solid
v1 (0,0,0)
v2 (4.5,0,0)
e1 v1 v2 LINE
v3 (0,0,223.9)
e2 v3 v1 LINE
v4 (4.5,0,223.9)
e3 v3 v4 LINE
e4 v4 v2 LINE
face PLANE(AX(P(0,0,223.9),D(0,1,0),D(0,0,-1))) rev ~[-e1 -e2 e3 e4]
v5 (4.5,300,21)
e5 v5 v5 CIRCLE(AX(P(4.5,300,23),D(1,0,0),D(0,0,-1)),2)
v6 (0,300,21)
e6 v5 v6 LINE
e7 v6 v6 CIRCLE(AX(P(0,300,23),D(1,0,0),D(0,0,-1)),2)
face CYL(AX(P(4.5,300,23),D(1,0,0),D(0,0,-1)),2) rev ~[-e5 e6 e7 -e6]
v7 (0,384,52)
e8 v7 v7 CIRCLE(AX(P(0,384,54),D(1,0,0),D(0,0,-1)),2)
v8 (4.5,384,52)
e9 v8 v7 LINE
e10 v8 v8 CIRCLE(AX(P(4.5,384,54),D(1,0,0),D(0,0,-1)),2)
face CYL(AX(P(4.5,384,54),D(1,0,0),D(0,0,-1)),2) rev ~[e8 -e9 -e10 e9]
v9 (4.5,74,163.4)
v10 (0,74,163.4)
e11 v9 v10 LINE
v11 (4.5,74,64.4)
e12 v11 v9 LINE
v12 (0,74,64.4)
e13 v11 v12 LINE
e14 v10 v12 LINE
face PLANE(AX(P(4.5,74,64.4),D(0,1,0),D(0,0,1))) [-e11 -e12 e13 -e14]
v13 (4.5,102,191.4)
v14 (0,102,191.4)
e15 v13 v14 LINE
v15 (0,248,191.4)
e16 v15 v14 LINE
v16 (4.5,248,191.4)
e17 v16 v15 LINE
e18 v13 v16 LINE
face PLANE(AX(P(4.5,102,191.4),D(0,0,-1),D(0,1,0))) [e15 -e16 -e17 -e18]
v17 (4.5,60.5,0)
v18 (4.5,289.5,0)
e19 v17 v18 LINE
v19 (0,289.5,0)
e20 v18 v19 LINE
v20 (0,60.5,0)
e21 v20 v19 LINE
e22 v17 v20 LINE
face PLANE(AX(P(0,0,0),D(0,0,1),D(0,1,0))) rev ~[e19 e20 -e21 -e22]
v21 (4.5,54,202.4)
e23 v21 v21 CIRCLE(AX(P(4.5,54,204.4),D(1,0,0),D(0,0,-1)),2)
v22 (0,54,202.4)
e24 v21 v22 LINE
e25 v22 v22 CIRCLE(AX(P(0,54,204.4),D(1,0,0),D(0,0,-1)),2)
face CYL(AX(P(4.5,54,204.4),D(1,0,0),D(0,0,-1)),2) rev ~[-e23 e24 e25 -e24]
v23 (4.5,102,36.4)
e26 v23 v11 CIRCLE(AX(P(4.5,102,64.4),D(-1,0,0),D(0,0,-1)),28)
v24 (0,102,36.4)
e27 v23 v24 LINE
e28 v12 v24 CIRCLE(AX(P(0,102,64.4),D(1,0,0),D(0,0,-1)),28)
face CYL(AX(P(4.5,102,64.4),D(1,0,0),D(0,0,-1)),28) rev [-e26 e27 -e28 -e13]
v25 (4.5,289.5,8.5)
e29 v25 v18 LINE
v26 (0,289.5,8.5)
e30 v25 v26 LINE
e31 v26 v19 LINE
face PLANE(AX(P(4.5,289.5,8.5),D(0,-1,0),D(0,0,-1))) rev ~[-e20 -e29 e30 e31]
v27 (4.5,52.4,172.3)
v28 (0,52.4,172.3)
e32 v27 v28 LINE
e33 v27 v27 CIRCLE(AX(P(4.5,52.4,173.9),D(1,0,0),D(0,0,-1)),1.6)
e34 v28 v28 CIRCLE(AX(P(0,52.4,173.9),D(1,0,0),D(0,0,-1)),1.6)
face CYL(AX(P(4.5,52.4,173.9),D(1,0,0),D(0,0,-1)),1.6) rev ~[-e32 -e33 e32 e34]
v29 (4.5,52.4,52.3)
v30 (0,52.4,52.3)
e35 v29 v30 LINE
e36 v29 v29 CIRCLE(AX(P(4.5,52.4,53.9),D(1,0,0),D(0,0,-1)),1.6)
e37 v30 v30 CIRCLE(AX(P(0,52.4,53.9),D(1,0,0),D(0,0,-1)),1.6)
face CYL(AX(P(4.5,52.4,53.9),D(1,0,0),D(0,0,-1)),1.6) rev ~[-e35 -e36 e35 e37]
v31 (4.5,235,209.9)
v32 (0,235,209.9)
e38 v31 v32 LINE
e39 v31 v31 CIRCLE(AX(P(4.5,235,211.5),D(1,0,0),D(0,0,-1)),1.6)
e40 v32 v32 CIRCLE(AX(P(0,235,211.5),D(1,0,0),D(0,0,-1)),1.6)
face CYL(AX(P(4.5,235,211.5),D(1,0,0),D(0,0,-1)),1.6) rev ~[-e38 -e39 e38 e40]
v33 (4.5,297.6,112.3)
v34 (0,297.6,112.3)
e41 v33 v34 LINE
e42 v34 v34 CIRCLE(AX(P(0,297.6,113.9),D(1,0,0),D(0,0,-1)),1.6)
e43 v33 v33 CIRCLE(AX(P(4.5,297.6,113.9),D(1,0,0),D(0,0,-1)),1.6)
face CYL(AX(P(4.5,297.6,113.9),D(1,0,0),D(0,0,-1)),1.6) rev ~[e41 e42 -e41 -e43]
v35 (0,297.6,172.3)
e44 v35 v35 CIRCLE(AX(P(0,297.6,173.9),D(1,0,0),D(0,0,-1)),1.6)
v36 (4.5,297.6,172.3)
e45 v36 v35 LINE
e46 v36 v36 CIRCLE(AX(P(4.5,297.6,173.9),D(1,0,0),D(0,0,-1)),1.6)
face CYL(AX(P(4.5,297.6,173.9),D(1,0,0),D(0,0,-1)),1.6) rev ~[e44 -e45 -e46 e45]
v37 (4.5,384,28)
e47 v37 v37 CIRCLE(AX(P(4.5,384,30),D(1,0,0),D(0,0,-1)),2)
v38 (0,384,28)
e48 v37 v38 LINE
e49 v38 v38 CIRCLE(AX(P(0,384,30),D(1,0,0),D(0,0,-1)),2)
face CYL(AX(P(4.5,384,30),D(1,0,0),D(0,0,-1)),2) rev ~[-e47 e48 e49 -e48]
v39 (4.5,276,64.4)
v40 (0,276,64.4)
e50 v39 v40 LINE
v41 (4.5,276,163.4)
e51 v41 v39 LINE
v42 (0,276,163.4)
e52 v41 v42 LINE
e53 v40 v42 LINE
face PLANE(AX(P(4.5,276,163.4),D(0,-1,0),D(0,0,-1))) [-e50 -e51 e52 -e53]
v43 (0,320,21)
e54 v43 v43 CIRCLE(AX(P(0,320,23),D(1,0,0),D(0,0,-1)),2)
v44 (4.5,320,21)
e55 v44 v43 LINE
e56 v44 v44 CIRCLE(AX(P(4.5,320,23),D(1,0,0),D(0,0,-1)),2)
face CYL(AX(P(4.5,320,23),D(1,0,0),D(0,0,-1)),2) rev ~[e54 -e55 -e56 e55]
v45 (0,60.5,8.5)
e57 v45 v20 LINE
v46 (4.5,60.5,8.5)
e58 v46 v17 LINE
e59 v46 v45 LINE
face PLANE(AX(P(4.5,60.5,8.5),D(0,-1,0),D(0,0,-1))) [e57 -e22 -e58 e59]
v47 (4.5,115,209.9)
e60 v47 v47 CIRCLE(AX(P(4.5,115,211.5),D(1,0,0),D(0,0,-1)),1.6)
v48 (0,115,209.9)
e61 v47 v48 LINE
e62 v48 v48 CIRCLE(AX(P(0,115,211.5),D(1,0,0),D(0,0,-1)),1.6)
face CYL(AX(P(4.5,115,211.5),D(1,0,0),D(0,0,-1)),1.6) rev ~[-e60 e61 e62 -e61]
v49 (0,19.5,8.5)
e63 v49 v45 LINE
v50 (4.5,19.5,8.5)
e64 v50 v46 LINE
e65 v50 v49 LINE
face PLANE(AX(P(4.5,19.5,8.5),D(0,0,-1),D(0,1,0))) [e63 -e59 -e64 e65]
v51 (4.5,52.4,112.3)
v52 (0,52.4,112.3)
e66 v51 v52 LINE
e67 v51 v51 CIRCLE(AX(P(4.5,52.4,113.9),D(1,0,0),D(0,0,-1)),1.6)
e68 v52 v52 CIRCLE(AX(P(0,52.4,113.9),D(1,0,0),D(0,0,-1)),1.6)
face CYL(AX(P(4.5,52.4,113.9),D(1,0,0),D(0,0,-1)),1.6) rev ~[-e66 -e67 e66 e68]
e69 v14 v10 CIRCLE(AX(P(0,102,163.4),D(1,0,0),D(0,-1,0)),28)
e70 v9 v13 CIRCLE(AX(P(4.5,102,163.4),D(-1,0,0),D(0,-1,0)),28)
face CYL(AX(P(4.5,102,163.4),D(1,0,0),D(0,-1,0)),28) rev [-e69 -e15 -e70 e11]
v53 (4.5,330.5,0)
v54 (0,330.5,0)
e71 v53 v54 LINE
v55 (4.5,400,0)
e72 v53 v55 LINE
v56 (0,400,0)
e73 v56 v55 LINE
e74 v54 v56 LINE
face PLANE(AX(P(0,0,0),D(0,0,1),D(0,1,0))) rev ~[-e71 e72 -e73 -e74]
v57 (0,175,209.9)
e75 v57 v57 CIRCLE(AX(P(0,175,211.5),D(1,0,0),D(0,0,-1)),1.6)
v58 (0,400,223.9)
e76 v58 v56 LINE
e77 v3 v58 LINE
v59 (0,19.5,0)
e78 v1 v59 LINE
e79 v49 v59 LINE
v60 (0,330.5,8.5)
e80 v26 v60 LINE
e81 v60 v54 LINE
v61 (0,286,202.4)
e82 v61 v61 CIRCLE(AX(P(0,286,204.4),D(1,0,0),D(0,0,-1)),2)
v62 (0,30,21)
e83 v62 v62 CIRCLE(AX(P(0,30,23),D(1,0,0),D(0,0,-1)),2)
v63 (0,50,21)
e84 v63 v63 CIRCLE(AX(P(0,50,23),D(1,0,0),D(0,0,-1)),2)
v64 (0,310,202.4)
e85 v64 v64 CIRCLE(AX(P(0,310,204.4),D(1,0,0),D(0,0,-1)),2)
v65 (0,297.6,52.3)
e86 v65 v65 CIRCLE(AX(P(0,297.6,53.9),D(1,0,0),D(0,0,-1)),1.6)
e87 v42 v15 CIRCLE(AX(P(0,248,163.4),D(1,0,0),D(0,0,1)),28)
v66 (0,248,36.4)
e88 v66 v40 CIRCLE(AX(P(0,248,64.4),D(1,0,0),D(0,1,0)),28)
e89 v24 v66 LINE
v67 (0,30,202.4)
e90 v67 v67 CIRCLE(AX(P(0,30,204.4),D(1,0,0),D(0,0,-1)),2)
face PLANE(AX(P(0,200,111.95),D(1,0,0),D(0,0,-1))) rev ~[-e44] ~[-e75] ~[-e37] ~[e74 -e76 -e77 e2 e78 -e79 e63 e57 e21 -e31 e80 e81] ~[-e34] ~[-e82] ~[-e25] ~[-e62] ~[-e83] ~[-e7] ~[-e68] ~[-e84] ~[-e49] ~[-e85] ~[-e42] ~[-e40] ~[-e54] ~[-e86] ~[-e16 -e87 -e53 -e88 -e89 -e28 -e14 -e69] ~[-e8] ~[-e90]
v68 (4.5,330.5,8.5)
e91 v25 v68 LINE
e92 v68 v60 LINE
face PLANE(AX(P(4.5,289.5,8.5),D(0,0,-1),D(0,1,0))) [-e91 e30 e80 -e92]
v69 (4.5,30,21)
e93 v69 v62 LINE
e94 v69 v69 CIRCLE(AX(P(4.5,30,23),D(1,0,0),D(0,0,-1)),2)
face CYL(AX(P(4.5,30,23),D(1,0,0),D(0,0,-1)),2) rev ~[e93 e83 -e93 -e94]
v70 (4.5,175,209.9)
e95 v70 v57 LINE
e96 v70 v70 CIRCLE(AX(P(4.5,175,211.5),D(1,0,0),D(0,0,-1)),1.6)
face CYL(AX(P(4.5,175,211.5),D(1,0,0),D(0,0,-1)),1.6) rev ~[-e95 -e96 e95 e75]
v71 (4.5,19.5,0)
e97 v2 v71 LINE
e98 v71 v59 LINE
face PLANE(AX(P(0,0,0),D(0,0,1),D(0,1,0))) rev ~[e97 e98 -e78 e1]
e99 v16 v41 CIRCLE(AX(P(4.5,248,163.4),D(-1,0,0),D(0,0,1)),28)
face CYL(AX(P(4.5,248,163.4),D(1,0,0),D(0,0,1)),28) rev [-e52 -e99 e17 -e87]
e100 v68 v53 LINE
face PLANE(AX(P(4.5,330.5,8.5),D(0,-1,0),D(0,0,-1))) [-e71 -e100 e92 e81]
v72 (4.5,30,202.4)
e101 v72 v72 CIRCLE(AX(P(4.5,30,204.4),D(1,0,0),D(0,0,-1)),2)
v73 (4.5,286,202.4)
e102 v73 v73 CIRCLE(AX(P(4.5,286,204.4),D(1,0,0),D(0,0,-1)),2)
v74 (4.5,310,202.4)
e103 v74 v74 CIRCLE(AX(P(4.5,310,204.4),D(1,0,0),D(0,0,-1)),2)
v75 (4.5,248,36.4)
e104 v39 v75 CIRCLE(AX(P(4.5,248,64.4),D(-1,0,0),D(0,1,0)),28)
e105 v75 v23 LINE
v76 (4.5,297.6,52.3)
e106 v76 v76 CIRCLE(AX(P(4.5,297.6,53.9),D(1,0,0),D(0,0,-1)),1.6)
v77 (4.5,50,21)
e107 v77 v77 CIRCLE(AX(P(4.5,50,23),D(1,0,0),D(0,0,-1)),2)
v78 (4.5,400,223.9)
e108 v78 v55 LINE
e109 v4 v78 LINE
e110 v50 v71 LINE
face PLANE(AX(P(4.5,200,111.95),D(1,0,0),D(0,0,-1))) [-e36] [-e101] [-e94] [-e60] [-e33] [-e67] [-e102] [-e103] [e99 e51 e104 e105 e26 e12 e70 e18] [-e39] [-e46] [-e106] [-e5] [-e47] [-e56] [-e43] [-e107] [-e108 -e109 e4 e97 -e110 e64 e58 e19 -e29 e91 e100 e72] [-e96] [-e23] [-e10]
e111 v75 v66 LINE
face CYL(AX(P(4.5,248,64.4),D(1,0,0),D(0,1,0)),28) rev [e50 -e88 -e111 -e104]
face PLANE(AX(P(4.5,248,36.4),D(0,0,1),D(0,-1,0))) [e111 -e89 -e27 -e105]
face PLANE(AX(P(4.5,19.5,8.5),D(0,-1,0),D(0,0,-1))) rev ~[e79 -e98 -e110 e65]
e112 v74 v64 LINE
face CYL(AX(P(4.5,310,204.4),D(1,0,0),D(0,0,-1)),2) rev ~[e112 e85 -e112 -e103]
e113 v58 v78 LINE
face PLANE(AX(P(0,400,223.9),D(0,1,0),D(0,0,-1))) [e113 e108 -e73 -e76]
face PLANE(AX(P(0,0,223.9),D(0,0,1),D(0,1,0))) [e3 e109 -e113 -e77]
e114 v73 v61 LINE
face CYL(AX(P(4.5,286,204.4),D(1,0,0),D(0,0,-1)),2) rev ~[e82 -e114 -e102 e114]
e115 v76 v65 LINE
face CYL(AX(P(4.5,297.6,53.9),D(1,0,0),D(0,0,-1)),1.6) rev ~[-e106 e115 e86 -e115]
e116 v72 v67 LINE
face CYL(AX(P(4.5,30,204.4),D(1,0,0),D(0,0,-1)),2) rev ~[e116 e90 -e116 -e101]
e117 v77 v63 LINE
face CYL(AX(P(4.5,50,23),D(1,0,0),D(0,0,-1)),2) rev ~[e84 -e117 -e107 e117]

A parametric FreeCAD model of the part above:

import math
import FreeCAD as App
import Part
import Sketcher
from FreeCAD import Vector
Q = App.Units.Quantity


def add_polygon(sketch, points):
    """Adds a closed chain of lines whose ends are joined by coincident constraints."""
    first, n = sketch.GeometryCount, len(points)
    for a, b in zip(points, points[1:] + points[:1]):
        sketch.addGeometry(Part.LineSegment(App.Vector(*a, 0), App.Vector(*b, 0)), False)
    for i in range(n):
        sketch.addConstraint(Sketcher.Constraint("Coincident", first + i, 2, first + (i + 1) % n, 1))

doc = App.newDocument("Part")
body = doc.addObject("PartDesign::Body", "Body")

# Sketch on YZ plane
sketch1 = doc.addObject("Sketcher::SketchObject", "Sketch")
body.addObject(sketch1)
sketch1.AttachmentSupport = (doc.YZ_Plane, [""])
sketch1.MapMode = "FlatFace"
add_polygon(sketch1, [(400, 223.9), (0, 223.9), (0, 0), (400, 0)])  # lines 0-3
sketch1.addConstraint([
    Sketcher.Constraint("Horizontal", 0),
    Sketcher.Constraint("Vertical", 1),
    Sketcher.Constraint("Horizontal", 2),
    Sketcher.Constraint("Vertical", 3),
    Sketcher.Constraint("Coincident", 1, 2, -1, 1),
    Sketcher.Constraint("DistanceX", 0, 2, 0, 1, Q("400 mm")),
    Sketcher.Constraint("DistanceY", 1, 2, 1, 1, Q("223.9 mm")),
])
pad1 = doc.addObject("PartDesign::Pad", "Pad")
body.addObject(pad1)
pad1.Profile = sketch1
pad1.Length = 4.5

# Sketch on YZ plane
sketch2 = doc.addObject("Sketcher::SketchObject", "Sketch001")
body.addObject(sketch2)
sketch2.AttachmentSupport = (doc.YZ_Plane, [""])
sketch2.MapMode = "FlatFace"
sketch2.AttachmentOffset = App.Placement(Vector(0, 0, 4.5), App.Rotation())
sketch2.addGeometry(Part.Circle(Vector(310, 204.4, 0), Vector(0, 0, 1), 2), False)  # 0
sketch2.addGeometry(Part.Circle(Vector(286, 204.4, 0), Vector(0, 0, 1), 2), False)  # 1
sketch2.addGeometry(Part.Circle(Vector(54, 204.4, 0), Vector(0, 0, 1), 2), False)  # 2
sketch2.addGeometry(Part.Circle(Vector(30, 204.4, 0), Vector(0, 0, 1), 2), False)  # 3
sketch2.addGeometry(Part.Circle(Vector(384, 54, 0), Vector(0, 0, 1), 2), False)  # 4
sketch2.addGeometry(Part.Circle(Vector(384, 30, 0), Vector(0, 0, 1), 2), False)  # 5
sketch2.addGeometry(Part.Circle(Vector(320, 23, 0), Vector(0, 0, 1), 2), False)  # 6
sketch2.addGeometry(Part.Circle(Vector(300, 23, 0), Vector(0, 0, 1), 2), False)  # 7
sketch2.addGeometry(Part.Circle(Vector(50, 23, 0), Vector(0, 0, 1), 2), False)  # 8
sketch2.addGeometry(Part.Circle(Vector(30, 23, 0), Vector(0, 0, 1), 2), False)  # 9
add_polygon(sketch2, [(330.5, 8.5), (289.5, 8.5), (289.5, 0), (330.5, 0)])  # lines 10-13
add_polygon(sketch2, [(60.5, 8.5), (19.5, 8.5), (19.5, 0), (60.5, 0)])  # lines 14-17
sketch2.addConstraint([
    Sketcher.Constraint("Horizontal", 10),
    Sketcher.Constraint("Vertical", 11),
    Sketcher.Constraint("Horizontal", 12),
    Sketcher.Constraint("Vertical", 13),
    Sketcher.Constraint("Horizontal", 14),
    Sketcher.Constraint("Vertical", 15),
    Sketcher.Constraint("Horizontal", 16),
    Sketcher.Constraint("Vertical", 17),
    Sketcher.Constraint("Equal", 0, 1),
    Sketcher.Constraint("Equal", 1, 2),
    Sketcher.Constraint("Equal", 2, 3),
    Sketcher.Constraint("Equal", 3, 4),
    Sketcher.Constraint("Equal", 4, 5),
    Sketcher.Constraint("Equal", 5, 6),
    Sketcher.Constraint("Equal", 6, 7),
    Sketcher.Constraint("Equal", 7, 8),
    Sketcher.Constraint("Equal", 8, 9),
    Sketcher.Constraint("PointOnObject", 11, 2, -1),
    Sketcher.Constraint("PointOnObject", 15, 2, -1),
    Sketcher.Constraint("Horizontal", 0, 3, 1, 3),
    Sketcher.Constraint("Horizontal", 1, 3, 2, 3),
    Sketcher.Constraint("Horizontal", 2, 3, 3, 3),
    Sketcher.Constraint("Horizontal", 6, 3, 7, 3),
    Sketcher.Constraint("Horizontal", 7, 3, 8, 3),
    Sketcher.Constraint("Horizontal", 8, 3, 9, 3),
    Sketcher.Constraint("Horizontal", 13, 2, 14, 2),
    Sketcher.Constraint("Vertical", 4, 3, 5, 3),
    Sketcher.Constraint("Vertical", 3, 3, 9, 3),
    Sketcher.Constraint("Equal", 12, 14),
    Sketcher.Constraint("Diameter", 0, Q("4 mm")),
    Sketcher.Constraint("DistanceX", 10, 2, 10, 1, Q("41 mm")),
    Sketcher.Constraint("DistanceY", 11, 2, 11, 1, Q("8.5 mm")),
    Sketcher.Constraint("DistanceX", -1, 1, 0, 3, Q("310 mm")),
    Sketcher.Constraint("DistanceX", -1, 1, 1, 3, Q("286 mm")),
    Sketcher.Constraint("DistanceX", -1, 1, 2, 3, Q("54 mm")),
    Sketcher.Constraint("DistanceX", -1, 1, 3, 3, Q("30 mm")),
    Sketcher.Constraint("DistanceX", -1, 1, 4, 3, Q("384 mm")),
    Sketcher.Constraint("DistanceY", -1, 1, 4, 3, Q("54 mm")),
    Sketcher.Constraint("DistanceY", -1, 1, 5, 3, Q("30 mm")),
    Sketcher.Constraint("DistanceX", -1, 1, 6, 3, Q("320 mm")),
    Sketcher.Constraint("DistanceY", -1, 1, 6, 3, Q("23 mm")),
    Sketcher.Constraint("DistanceX", -1, 1, 7, 3, Q("300 mm")),
    Sketcher.Constraint("DistanceX", -1, 1, 8, 3, Q("50 mm")),
    Sketcher.Constraint("DistanceX", 14, 2, 10, 2, Q("270 mm")),
    Sketcher.Constraint("DistanceY", -1, 1, 0, 3, Q("204.4 mm")),
    Sketcher.Constraint("DistanceX", -1, 1, 10, 2, Q("289.5 mm")),
])
pocket1 = doc.addObject("PartDesign::Pocket", "Pocket")
body.addObject(pocket1)
pocket1.Profile = sketch2
pocket1.Length = 10

# Sketch on YZ plane
sketch3 = doc.addObject("Sketcher::SketchObject", "Sketch002")
body.addObject(sketch3)
sketch3.AttachmentSupport = (doc.YZ_Plane, [""])
sketch3.MapMode = "FlatFace"
sketch3.AttachmentOffset = App.Placement(Vector(0, 0, 4.5), App.Rotation())
sketch3.addGeometry(Part.Circle(Vector(175, 211.5, 0), Vector(0, 0, 1), 1.6), False)
sketch3.addConstraint([
    Sketcher.Constraint("Diameter", 0, Q("3.2 mm")),
    Sketcher.Constraint("DistanceX", -1, 1, 0, 3, Q("175 mm")),
    Sketcher.Constraint("DistanceY", -1, 1, 0, 3, Q("211.5 mm")),
])
pocket2 = doc.addObject("PartDesign::Pocket", "Pocket001")
body.addObject(pocket2)
pocket2.Profile = sketch3
pocket2.Type = "UpToFirst"

# Sketch on YZ plane
sketch4 = doc.addObject("Sketcher::SketchObject", "Sketch003")
body.addObject(sketch4)
sketch4.AttachmentSupport = (doc.YZ_Plane, [""])
sketch4.MapMode = "FlatFace"
sketch4.AttachmentOffset = App.Placement(Vector(0, 0, 4.5), App.Rotation())
sketch4.addGeometry(Part.Circle(Vector(235, 211.5, 0), Vector(0, 0, 1), 1.6), False)
sketch4.addConstraint([
    Sketcher.Constraint("Diameter", 0, Q("3.2 mm")),
    Sketcher.Constraint("DistanceX", -1, 1, 0, 3, Q("235 mm")),
    Sketcher.Constraint("DistanceY", -1, 1, 0, 3, Q("211.5 mm")),
])
pocket3 = doc.addObject("PartDesign::Pocket", "Pocket002")
body.addObject(pocket3)
pocket3.Profile = sketch4
pocket3.Type = "UpToFirst"

# Sketch on YZ plane
sketch5 = doc.addObject("Sketcher::SketchObject", "Sketch004")
body.addObject(sketch5)
sketch5.AttachmentSupport = (doc.YZ_Plane, [""])
sketch5.MapMode = "FlatFace"
sketch5.AttachmentOffset = App.Placement(Vector(0, 0, 4.5), App.Rotation())
sketch5.addGeometry(Part.Circle(Vector(115, 211.5, 0), Vector(0, 0, 1), 1.6), False)
sketch5.addConstraint([
    Sketcher.Constraint("Diameter", 0, Q("3.2 mm")),
    Sketcher.Constraint("DistanceX", -1, 1, 0, 3, Q("115 mm")),
    Sketcher.Constraint("DistanceY", -1, 1, 0, 3, Q("211.5 mm")),
])
pocket4 = doc.addObject("PartDesign::Pocket", "Pocket003")
body.addObject(pocket4)
pocket4.Profile = sketch5
pocket4.Type = "UpToFirst"

# Sketch on YZ plane
sketch6 = doc.addObject("Sketcher::SketchObject", "Sketch005")
body.addObject(sketch6)
sketch6.AttachmentSupport = (doc.YZ_Plane, [""])
sketch6.MapMode = "FlatFace"
sketch6.AttachmentOffset = App.Placement(Vector(0, 0, 4.5), App.Rotation())
sketch6.addGeometry(Part.Circle(Vector(297.6, 173.9, 0), Vector(0, 0, 1), 1.6), False)
sketch6.addConstraint([
    Sketcher.Constraint("Diameter", 0, Q("3.2 mm")),
    Sketcher.Constraint("DistanceX", -1, 1, 0, 3, Q("297.6 mm")),
    Sketcher.Constraint("DistanceY", -1, 1, 0, 3, Q("173.9 mm")),
])
pocket5 = doc.addObject("PartDesign::Pocket", "Pocket004")
body.addObject(pocket5)
pocket5.Profile = sketch6
pocket5.Type = "UpToFirst"

# Sketch on YZ plane
sketch7 = doc.addObject("Sketcher::SketchObject", "Sketch006")
body.addObject(sketch7)
sketch7.AttachmentSupport = (doc.YZ_Plane, [""])
sketch7.MapMode = "FlatFace"
sketch7.AttachmentOffset = App.Placement(Vector(0, 0, 4.5), App.Rotation())
sketch7.addGeometry(Part.Circle(Vector(297.6, 53.9, 0), Vector(0, 0, 1), 1.6), False)
sketch7.addConstraint([
    Sketcher.Constraint("Diameter", 0, Q("3.2 mm")),
    Sketcher.Constraint("DistanceX", -1, 1, 0, 3, Q("297.6 mm")),
    Sketcher.Constraint("DistanceY", -1, 1, 0, 3, Q("53.9 mm")),
])
pocket6 = doc.addObject("PartDesign::Pocket", "Pocket005")
body.addObject(pocket6)
pocket6.Profile = sketch7
pocket6.Type = "UpToFirst"

# Sketch on YZ plane
sketch8 = doc.addObject("Sketcher::SketchObject", "Sketch007")
body.addObject(sketch8)
sketch8.AttachmentSupport = (doc.YZ_Plane, [""])
sketch8.MapMode = "FlatFace"
sketch8.AttachmentOffset = App.Placement(Vector(0, 0, 4.5), App.Rotation())
sketch8.addGeometry(Part.Circle(Vector(52.4, 53.9, 0), Vector(0, 0, 1), 1.6), False)
sketch8.addConstraint([
    Sketcher.Constraint("Diameter", 0, Q("3.2 mm")),
    Sketcher.Constraint("DistanceX", -1, 1, 0, 3, Q("52.4 mm")),
    Sketcher.Constraint("DistanceY", -1, 1, 0, 3, Q("53.9 mm")),
])
pocket7 = doc.addObject("PartDesign::Pocket", "Pocket006")
body.addObject(pocket7)
pocket7.Profile = sketch8
pocket7.Type = "UpToFirst"

# Sketch on YZ plane
sketch9 = doc.addObject("Sketcher::SketchObject", "Sketch008")
body.addObject(sketch9)
sketch9.AttachmentSupport = (doc.YZ_Plane, [""])
sketch9.MapMode = "FlatFace"
sketch9.AttachmentOffset = App.Placement(Vector(0, 0, 4.5), App.Rotation())
sketch9.addGeometry(Part.Circle(Vector(52.4, 173.9, 0), Vector(0, 0, 1), 1.6), False)
sketch9.addConstraint([
    Sketcher.Constraint("Diameter", 0, Q("3.2 mm")),
    Sketcher.Constraint("DistanceX", -1, 1, 0, 3, Q("52.4 mm")),
    Sketcher.Constraint("DistanceY", -1, 1, 0, 3, Q("173.9 mm")),
])
pocket8 = doc.addObject("PartDesign::Pocket", "Pocket007")
body.addObject(pocket8)
pocket8.Profile = sketch9
pocket8.Type = "UpToFirst"

# Sketch on YZ plane
sketch10 = doc.addObject("Sketcher::SketchObject", "Sketch009")
body.addObject(sketch10)
sketch10.AttachmentSupport = (doc.YZ_Plane, [""])
sketch10.MapMode = "FlatFace"
sketch10.AttachmentOffset = App.Placement(Vector(0, 0, 4.5), App.Rotation())
sketch10.addGeometry(Part.Circle(Vector(297.6, 113.9, 0), Vector(0, 0, 1), 1.6), False)
sketch10.addConstraint([
    Sketcher.Constraint("Diameter", 0, Q("3.2 mm")),
    Sketcher.Constraint("DistanceX", -1, 1, 0, 3, Q("297.6 mm")),
    Sketcher.Constraint("DistanceY", -1, 1, 0, 3, Q("113.9 mm")),
])
pocket9 = doc.addObject("PartDesign::Pocket", "Pocket008")
body.addObject(pocket9)
pocket9.Profile = sketch10
pocket9.Type = "UpToFirst"

# Sketch on YZ plane
sketch11 = doc.addObject("Sketcher::SketchObject", "Sketch010")
body.addObject(sketch11)
sketch11.AttachmentSupport = (doc.YZ_Plane, [""])
sketch11.MapMode = "FlatFace"
sketch11.AttachmentOffset = App.Placement(Vector(0, 0, 4.5), App.Rotation())
sketch11.addGeometry(Part.Circle(Vector(52.4, 113.9, 0), Vector(0, 0, 1), 1.6), False)
sketch11.addConstraint([
    Sketcher.Constraint("Diameter", 0, Q("3.2 mm")),
    Sketcher.Constraint("DistanceX", -1, 1, 0, 3, Q("52.4 mm")),
    Sketcher.Constraint("DistanceY", -1, 1, 0, 3, Q("113.9 mm")),
])
pocket10 = doc.addObject("PartDesign::Pocket", "Pocket009")
body.addObject(pocket10)
pocket10.Profile = sketch11
pocket10.Type = "UpToFirst"

# Sketch on YZ plane
sketch12 = doc.addObject("Sketcher::SketchObject", "Sketch011")
body.addObject(sketch12)
sketch12.AttachmentSupport = (doc.YZ_Plane, [""])
sketch12.MapMode = "FlatFace"
sketch12.AttachmentOffset = App.Placement(Vector(0, 0, 4.5), App.Rotation())
sketch12.addGeometry([
    Part.LineSegment(Vector(74, 163.4, 0), Vector(74, 64.4, 0)),  # 0
    Part.ArcOfCircle(Part.Circle(Vector(102, 64.4, 0), Vector(0, 0, 1), 28), math.radians(-180), math.radians(-90)),  # 1
    Part.LineSegment(Vector(102, 36.4, 0), Vector(248, 36.4, 0)),  # 2
    Part.ArcOfCircle(Part.Circle(Vector(248, 64.4, 0), Vector(0, 0, 1), 28), math.radians(-90), math.radians(0)),  # 3
    Part.LineSegment(Vector(276, 64.4, 0), Vector(276, 163.4, 0)),  # 4
    Part.ArcOfCircle(Part.Circle(Vector(248, 163.4, 0), Vector(0, 0, 1), 28), math.radians(0), math.radians(90)),  # 5
    Part.LineSegment(Vector(248, 191.4, 0), Vector(102, 191.4, 0)),  # 6
    Part.ArcOfCircle(Part.Circle(Vector(102, 163.4, 0), Vector(0, 0, 1), 28), math.radians(90), math.radians(180)),  # 7
], False)
sketch12.addConstraint([
    Sketcher.Constraint("Tangent", 0, 2, 1, 1),
    Sketcher.Constraint("Tangent", 1, 2, 2, 1),
    Sketcher.Constraint("Tangent", 2, 2, 3, 1),
    Sketcher.Constraint("Tangent", 3, 2, 4, 1),
    Sketcher.Constraint("Tangent", 4, 2, 5, 1),
    Sketcher.Constraint("Tangent", 5, 2, 6, 1),
    Sketcher.Constraint("Tangent", 6, 2, 7, 1),
    Sketcher.Constraint("Tangent", 7, 2, 0, 1),
    Sketcher.Constraint("Vertical", 0),
    Sketcher.Constraint("Horizontal", 2),
    Sketcher.Constraint("Vertical", 4),
    Sketcher.Constraint("Horizontal", 6),
    Sketcher.Constraint("Equal", 1, 3),
    Sketcher.Constraint("Equal", 3, 5),
    Sketcher.Constraint("Equal", 5, 7),
    Sketcher.Constraint("Radius", 1, Q("28 mm")),
    Sketcher.Constraint("DistanceX", 2, 1, 2, 2, Q("146 mm")),
    Sketcher.Constraint("DistanceY", 0, 2, 0, 1, Q("99 mm")),
    Sketcher.Constraint("DistanceX", -1, 1, 1, 3, Q("102 mm")),
    Sketcher.Constraint("DistanceY", -1, 1, 1, 3, Q("64.4 mm")),
])
pocket11 = doc.addObject("PartDesign::Pocket", "Pocket010")
body.addObject(pocket11)
pocket11.Profile = sketch12
pocket11.Type = "UpToFirst"

doc.recompute()
